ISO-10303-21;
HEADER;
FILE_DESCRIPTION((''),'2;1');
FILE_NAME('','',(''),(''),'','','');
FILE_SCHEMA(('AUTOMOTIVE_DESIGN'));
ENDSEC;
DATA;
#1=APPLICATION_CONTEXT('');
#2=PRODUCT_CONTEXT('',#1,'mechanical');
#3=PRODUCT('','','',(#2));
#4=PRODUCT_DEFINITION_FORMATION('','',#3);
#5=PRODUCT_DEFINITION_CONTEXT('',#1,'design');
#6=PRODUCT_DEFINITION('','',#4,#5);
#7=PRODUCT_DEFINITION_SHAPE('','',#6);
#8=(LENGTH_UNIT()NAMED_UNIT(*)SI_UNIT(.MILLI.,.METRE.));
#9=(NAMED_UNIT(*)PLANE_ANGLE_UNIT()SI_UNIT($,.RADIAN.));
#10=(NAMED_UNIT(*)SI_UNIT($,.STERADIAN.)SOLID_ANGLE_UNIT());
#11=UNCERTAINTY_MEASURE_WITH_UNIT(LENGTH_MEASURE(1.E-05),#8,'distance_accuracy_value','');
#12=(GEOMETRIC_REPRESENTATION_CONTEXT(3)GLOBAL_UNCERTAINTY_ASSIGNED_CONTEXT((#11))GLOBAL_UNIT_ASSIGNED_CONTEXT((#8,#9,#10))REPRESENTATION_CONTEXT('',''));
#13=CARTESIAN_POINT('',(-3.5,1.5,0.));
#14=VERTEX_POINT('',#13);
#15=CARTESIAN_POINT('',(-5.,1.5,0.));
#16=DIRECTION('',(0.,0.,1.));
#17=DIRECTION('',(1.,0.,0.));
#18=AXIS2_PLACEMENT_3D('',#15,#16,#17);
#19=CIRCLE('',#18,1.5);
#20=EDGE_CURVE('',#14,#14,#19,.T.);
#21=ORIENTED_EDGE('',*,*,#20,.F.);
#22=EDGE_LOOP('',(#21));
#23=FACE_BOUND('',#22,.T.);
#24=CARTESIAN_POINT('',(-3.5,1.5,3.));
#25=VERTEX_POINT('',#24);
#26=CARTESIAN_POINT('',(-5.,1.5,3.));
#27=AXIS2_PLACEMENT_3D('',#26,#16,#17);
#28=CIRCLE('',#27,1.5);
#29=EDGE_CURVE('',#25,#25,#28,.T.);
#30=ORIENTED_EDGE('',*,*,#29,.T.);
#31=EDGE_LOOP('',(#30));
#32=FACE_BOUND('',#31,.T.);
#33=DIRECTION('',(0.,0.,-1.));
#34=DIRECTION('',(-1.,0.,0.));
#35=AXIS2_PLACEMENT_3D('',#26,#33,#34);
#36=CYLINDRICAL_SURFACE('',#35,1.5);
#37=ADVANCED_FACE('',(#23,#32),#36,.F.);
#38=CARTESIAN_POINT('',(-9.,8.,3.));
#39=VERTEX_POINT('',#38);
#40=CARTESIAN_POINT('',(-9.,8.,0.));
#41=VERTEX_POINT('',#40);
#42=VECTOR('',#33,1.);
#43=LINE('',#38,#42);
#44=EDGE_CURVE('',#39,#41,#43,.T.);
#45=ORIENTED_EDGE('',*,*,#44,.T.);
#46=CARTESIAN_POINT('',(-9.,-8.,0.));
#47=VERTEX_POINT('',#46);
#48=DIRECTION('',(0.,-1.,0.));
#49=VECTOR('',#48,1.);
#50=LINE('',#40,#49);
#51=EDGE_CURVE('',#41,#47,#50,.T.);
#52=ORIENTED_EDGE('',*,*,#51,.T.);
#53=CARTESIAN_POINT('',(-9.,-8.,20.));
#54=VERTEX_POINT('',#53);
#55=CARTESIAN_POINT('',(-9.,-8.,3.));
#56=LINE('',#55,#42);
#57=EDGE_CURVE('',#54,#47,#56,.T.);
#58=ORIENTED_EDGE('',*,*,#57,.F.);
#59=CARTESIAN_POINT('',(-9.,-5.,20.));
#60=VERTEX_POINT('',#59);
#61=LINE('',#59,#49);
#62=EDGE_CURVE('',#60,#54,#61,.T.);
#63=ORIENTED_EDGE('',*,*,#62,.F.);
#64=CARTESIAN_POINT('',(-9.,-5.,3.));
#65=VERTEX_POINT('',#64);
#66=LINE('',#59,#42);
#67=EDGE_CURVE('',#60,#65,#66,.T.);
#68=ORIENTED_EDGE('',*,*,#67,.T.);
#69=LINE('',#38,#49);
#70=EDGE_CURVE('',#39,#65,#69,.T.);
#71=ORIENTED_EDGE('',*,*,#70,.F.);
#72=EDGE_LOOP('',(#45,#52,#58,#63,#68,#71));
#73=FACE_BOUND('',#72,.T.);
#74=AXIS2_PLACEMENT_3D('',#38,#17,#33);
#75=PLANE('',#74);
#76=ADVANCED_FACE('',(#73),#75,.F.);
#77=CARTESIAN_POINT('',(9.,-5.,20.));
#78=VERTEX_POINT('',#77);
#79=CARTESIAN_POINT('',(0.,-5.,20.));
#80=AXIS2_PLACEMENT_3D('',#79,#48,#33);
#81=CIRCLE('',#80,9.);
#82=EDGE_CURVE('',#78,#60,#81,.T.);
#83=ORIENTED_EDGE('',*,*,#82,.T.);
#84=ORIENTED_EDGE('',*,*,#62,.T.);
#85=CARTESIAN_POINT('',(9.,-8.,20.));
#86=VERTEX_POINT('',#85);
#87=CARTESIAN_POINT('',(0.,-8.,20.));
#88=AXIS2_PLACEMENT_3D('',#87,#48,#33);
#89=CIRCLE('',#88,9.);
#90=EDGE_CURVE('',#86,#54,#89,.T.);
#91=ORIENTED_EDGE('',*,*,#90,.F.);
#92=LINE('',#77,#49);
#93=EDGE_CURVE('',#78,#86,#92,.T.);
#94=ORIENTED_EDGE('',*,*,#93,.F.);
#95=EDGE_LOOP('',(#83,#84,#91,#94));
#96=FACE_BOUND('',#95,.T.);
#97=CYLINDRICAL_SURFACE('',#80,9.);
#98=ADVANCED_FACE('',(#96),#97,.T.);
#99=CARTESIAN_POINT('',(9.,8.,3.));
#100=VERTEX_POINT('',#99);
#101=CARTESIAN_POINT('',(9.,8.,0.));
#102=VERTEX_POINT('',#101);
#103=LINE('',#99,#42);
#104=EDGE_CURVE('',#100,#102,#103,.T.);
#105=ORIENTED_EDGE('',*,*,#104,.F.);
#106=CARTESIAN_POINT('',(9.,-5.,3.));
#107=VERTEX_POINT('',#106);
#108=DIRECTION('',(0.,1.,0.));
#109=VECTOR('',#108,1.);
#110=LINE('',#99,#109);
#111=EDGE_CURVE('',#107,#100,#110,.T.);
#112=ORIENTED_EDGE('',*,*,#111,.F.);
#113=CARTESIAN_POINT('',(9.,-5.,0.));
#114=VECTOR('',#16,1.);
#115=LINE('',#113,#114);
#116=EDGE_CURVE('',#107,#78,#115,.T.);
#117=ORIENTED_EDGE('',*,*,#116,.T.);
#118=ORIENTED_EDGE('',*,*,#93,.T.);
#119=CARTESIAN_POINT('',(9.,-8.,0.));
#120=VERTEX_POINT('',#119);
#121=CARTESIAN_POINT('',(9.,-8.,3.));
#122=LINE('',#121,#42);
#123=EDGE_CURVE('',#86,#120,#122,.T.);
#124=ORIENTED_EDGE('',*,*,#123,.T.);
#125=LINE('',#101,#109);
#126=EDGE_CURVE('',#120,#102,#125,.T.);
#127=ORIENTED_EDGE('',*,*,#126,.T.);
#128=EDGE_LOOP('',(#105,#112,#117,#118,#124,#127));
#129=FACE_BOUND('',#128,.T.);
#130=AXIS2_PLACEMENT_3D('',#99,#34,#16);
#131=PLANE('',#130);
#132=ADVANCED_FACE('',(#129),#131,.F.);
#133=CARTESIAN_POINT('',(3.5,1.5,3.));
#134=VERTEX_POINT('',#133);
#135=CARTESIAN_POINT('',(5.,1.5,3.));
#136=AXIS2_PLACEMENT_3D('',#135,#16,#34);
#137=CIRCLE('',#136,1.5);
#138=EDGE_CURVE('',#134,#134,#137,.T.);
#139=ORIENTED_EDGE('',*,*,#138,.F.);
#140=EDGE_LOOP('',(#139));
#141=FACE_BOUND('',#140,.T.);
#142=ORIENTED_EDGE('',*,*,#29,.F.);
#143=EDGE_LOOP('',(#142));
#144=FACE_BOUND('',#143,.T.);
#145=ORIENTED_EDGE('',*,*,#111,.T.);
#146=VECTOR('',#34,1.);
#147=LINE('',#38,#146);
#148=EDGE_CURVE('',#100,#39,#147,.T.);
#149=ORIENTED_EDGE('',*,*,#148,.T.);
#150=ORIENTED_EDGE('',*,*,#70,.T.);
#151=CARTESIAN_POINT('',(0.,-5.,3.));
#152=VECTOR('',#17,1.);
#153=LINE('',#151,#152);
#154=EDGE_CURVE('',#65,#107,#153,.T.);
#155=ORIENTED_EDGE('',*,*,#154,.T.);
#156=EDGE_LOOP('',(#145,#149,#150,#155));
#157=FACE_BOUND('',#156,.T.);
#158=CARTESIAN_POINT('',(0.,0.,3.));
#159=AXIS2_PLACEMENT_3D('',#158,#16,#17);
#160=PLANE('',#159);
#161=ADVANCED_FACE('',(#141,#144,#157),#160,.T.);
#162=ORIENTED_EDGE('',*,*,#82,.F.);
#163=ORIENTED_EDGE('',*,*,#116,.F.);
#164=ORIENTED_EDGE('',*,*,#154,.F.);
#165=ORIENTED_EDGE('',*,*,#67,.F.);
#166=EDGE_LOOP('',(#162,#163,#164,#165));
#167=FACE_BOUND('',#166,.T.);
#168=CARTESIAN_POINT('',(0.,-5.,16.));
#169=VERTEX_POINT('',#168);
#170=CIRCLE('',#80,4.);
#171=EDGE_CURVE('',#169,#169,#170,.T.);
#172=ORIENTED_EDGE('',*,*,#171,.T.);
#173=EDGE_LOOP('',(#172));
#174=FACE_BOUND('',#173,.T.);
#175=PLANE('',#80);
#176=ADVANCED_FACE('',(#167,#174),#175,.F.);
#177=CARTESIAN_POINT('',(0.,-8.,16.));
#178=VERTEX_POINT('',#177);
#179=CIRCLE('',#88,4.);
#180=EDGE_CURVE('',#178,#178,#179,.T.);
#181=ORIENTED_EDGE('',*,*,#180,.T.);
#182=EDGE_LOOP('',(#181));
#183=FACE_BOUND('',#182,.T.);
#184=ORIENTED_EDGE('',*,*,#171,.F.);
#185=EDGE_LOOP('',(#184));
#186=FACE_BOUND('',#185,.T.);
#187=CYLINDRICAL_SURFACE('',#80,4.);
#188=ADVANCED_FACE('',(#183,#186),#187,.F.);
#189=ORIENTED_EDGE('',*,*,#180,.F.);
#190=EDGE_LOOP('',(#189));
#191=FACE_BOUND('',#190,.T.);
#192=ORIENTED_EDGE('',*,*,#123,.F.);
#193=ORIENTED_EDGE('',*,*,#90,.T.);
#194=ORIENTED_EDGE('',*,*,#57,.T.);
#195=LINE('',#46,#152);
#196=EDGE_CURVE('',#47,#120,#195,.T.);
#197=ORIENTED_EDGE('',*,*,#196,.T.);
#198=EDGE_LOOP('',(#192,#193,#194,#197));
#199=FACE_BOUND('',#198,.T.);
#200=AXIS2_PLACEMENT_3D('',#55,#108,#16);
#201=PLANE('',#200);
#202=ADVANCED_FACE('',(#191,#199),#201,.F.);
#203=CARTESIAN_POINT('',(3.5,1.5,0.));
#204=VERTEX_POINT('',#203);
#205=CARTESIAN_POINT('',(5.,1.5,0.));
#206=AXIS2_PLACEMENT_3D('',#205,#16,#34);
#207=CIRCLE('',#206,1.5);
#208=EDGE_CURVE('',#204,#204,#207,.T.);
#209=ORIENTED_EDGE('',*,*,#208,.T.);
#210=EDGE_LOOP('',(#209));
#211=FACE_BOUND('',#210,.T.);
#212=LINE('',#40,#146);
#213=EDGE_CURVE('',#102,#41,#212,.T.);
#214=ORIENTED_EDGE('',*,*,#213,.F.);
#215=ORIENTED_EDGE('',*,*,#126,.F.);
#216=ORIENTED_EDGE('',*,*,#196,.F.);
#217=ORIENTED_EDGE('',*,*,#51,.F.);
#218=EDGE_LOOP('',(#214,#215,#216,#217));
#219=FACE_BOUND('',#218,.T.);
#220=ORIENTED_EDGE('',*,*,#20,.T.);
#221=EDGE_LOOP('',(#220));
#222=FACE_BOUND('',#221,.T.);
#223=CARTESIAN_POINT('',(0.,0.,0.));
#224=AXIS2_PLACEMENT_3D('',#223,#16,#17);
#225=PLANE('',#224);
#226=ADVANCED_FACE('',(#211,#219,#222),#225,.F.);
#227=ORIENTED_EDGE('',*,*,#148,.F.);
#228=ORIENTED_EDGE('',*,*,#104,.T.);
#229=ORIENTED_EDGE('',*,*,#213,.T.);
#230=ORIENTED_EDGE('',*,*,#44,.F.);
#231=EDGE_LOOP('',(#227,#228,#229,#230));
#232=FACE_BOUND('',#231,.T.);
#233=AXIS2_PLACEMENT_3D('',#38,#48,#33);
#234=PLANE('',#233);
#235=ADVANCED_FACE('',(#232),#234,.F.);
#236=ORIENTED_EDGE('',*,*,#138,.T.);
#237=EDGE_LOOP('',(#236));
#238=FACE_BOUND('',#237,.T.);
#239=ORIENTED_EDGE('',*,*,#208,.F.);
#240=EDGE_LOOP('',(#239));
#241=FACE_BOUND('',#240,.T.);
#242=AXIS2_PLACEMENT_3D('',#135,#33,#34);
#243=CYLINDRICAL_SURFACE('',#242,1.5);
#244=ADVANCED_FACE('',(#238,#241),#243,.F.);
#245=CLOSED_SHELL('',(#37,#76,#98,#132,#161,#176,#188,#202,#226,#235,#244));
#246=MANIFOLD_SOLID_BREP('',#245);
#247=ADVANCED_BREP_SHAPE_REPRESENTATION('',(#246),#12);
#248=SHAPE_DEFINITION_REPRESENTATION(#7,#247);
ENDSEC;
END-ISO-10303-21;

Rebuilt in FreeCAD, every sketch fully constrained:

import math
import FreeCAD as App
import Part
import Sketcher
Q = App.Units.Quantity


def add_polygon(sketch, points):
    """Adds a closed chain of lines whose ends are joined by coincident constraints."""
    first, n = sketch.GeometryCount, len(points)
    for a, b in zip(points, points[1:] + points[:1]):
        sketch.addGeometry(Part.LineSegment(App.Vector(*a, 0), App.Vector(*b, 0)), False)
    for i in range(n):
        sketch.addConstraint(Sketcher.Constraint("Coincident", first + i, 2, first + (i + 1) % n, 1))

doc = App.newDocument("Part")
body = doc.addObject("PartDesign::Body", "Body")

# Sketch on XY plane
sketch1 = body.newObject("Sketcher::SketchObject", "Sketch")
sketch1.AttachmentSupport = (doc.getObject("XY_Plane"), [""])
sketch1.MapMode = "FlatFace"
add_polygon(sketch1, [(-9, 8), (-9, -8), (9, -8), (9, 8)])  # lines 0-3
sketch1.addGeometry(Part.Circle(App.Vector(-5, 1.5, 0), App.Vector(0, 0, 1), 1.5), False)  # 4
sketch1.addGeometry(Part.Circle(App.Vector(5, 1.5, 0), App.Vector(0, 0, 1), 1.5), False)  # 5
sketch1.addConstraint([
    Sketcher.Constraint("Vertical", 0),
    Sketcher.Constraint("Horizontal", 1),
    Sketcher.Constraint("Vertical", 2),
    Sketcher.Constraint("Horizontal", 3),
    Sketcher.Constraint("Equal", 4, 5),
    Sketcher.Constraint("Symmetric", 0, 2, 2, 2, -1, 1),
    Sketcher.Constraint("Symmetric", 4, 3, 5, 3, -2),
    Sketcher.Constraint("Diameter", 4, Q("3 mm")),
    Sketcher.Constraint("DistanceX", 1, 1, 1, 2, Q("18 mm")),
    Sketcher.Constraint("DistanceY", 0, 2, 0, 1, Q("16 mm")),
    Sketcher.Constraint("DistanceX", 4, 3, -1, 1, Q("5 mm")),
    Sketcher.Constraint("DistanceY", -1, 1, 4, 3, Q("1.5 mm")),
])
pad1 = body.newObject("PartDesign::Pad", "Pad")
pad1.Profile = sketch1
pad1.Length = 3

# Sketch on XZ plane
sketch2 = body.newObject("Sketcher::SketchObject", "Sketch001")
sketch2.AttachmentSupport = (doc.getObject("XZ_Plane"), [""])
sketch2.MapMode = "FlatFace"
sketch2.AttachmentOffset = App.Placement(App.Vector(0, 0, 8), App.Rotation())
sketch2.addGeometry([
    Part.LineSegment(App.Vector(-9, 0, 0), App.Vector(9, 0, 0)),  # 0
    Part.LineSegment(App.Vector(9, 0, 0), App.Vector(9, 20, 0)),  # 1
    Part.ArcOfCircle(Part.Circle(App.Vector(0, 20, 0), App.Vector(0, 0, 1), 9), math.radians(0), math.radians(180)),  # 2
    Part.LineSegment(App.Vector(-9, 20, 0), App.Vector(-9, 0, 0)),  # 3
    Part.Circle(App.Vector(0, 20, 0), App.Vector(0, 0, 1), 4),  # 4
], False)
sketch2.addConstraint([
    Sketcher.Constraint("Coincident", 0, 2, 1, 1),
    Sketcher.Constraint("Tangent", 1, 2, 2, 1),
    Sketcher.Constraint("Tangent", 2, 2, 3, 1),
    Sketcher.Constraint("Coincident", 3, 2, 0, 1),
    Sketcher.Constraint("Horizontal", 0),
    Sketcher.Constraint("Vertical", 1),
    Sketcher.Constraint("Vertical", 3),
    Sketcher.Constraint("Coincident", 4, 3, 2, 3),
    Sketcher.Constraint("Symmetric", 0, 2, 3, 2, -1, 1),
    Sketcher.Constraint("Diameter", 4, Q("8 mm")),
    Sketcher.Constraint("Radius", 2, Q("9 mm")),
    Sketcher.Constraint("DistanceY", 1, 1, 1, 2, Q("20 mm")),
])
pad2 = body.newObject("PartDesign::Pad", "Pad001")
pad2.Profile = sketch2
pad2.Length = 3
pad2.Reversed = True

doc.recompute()
